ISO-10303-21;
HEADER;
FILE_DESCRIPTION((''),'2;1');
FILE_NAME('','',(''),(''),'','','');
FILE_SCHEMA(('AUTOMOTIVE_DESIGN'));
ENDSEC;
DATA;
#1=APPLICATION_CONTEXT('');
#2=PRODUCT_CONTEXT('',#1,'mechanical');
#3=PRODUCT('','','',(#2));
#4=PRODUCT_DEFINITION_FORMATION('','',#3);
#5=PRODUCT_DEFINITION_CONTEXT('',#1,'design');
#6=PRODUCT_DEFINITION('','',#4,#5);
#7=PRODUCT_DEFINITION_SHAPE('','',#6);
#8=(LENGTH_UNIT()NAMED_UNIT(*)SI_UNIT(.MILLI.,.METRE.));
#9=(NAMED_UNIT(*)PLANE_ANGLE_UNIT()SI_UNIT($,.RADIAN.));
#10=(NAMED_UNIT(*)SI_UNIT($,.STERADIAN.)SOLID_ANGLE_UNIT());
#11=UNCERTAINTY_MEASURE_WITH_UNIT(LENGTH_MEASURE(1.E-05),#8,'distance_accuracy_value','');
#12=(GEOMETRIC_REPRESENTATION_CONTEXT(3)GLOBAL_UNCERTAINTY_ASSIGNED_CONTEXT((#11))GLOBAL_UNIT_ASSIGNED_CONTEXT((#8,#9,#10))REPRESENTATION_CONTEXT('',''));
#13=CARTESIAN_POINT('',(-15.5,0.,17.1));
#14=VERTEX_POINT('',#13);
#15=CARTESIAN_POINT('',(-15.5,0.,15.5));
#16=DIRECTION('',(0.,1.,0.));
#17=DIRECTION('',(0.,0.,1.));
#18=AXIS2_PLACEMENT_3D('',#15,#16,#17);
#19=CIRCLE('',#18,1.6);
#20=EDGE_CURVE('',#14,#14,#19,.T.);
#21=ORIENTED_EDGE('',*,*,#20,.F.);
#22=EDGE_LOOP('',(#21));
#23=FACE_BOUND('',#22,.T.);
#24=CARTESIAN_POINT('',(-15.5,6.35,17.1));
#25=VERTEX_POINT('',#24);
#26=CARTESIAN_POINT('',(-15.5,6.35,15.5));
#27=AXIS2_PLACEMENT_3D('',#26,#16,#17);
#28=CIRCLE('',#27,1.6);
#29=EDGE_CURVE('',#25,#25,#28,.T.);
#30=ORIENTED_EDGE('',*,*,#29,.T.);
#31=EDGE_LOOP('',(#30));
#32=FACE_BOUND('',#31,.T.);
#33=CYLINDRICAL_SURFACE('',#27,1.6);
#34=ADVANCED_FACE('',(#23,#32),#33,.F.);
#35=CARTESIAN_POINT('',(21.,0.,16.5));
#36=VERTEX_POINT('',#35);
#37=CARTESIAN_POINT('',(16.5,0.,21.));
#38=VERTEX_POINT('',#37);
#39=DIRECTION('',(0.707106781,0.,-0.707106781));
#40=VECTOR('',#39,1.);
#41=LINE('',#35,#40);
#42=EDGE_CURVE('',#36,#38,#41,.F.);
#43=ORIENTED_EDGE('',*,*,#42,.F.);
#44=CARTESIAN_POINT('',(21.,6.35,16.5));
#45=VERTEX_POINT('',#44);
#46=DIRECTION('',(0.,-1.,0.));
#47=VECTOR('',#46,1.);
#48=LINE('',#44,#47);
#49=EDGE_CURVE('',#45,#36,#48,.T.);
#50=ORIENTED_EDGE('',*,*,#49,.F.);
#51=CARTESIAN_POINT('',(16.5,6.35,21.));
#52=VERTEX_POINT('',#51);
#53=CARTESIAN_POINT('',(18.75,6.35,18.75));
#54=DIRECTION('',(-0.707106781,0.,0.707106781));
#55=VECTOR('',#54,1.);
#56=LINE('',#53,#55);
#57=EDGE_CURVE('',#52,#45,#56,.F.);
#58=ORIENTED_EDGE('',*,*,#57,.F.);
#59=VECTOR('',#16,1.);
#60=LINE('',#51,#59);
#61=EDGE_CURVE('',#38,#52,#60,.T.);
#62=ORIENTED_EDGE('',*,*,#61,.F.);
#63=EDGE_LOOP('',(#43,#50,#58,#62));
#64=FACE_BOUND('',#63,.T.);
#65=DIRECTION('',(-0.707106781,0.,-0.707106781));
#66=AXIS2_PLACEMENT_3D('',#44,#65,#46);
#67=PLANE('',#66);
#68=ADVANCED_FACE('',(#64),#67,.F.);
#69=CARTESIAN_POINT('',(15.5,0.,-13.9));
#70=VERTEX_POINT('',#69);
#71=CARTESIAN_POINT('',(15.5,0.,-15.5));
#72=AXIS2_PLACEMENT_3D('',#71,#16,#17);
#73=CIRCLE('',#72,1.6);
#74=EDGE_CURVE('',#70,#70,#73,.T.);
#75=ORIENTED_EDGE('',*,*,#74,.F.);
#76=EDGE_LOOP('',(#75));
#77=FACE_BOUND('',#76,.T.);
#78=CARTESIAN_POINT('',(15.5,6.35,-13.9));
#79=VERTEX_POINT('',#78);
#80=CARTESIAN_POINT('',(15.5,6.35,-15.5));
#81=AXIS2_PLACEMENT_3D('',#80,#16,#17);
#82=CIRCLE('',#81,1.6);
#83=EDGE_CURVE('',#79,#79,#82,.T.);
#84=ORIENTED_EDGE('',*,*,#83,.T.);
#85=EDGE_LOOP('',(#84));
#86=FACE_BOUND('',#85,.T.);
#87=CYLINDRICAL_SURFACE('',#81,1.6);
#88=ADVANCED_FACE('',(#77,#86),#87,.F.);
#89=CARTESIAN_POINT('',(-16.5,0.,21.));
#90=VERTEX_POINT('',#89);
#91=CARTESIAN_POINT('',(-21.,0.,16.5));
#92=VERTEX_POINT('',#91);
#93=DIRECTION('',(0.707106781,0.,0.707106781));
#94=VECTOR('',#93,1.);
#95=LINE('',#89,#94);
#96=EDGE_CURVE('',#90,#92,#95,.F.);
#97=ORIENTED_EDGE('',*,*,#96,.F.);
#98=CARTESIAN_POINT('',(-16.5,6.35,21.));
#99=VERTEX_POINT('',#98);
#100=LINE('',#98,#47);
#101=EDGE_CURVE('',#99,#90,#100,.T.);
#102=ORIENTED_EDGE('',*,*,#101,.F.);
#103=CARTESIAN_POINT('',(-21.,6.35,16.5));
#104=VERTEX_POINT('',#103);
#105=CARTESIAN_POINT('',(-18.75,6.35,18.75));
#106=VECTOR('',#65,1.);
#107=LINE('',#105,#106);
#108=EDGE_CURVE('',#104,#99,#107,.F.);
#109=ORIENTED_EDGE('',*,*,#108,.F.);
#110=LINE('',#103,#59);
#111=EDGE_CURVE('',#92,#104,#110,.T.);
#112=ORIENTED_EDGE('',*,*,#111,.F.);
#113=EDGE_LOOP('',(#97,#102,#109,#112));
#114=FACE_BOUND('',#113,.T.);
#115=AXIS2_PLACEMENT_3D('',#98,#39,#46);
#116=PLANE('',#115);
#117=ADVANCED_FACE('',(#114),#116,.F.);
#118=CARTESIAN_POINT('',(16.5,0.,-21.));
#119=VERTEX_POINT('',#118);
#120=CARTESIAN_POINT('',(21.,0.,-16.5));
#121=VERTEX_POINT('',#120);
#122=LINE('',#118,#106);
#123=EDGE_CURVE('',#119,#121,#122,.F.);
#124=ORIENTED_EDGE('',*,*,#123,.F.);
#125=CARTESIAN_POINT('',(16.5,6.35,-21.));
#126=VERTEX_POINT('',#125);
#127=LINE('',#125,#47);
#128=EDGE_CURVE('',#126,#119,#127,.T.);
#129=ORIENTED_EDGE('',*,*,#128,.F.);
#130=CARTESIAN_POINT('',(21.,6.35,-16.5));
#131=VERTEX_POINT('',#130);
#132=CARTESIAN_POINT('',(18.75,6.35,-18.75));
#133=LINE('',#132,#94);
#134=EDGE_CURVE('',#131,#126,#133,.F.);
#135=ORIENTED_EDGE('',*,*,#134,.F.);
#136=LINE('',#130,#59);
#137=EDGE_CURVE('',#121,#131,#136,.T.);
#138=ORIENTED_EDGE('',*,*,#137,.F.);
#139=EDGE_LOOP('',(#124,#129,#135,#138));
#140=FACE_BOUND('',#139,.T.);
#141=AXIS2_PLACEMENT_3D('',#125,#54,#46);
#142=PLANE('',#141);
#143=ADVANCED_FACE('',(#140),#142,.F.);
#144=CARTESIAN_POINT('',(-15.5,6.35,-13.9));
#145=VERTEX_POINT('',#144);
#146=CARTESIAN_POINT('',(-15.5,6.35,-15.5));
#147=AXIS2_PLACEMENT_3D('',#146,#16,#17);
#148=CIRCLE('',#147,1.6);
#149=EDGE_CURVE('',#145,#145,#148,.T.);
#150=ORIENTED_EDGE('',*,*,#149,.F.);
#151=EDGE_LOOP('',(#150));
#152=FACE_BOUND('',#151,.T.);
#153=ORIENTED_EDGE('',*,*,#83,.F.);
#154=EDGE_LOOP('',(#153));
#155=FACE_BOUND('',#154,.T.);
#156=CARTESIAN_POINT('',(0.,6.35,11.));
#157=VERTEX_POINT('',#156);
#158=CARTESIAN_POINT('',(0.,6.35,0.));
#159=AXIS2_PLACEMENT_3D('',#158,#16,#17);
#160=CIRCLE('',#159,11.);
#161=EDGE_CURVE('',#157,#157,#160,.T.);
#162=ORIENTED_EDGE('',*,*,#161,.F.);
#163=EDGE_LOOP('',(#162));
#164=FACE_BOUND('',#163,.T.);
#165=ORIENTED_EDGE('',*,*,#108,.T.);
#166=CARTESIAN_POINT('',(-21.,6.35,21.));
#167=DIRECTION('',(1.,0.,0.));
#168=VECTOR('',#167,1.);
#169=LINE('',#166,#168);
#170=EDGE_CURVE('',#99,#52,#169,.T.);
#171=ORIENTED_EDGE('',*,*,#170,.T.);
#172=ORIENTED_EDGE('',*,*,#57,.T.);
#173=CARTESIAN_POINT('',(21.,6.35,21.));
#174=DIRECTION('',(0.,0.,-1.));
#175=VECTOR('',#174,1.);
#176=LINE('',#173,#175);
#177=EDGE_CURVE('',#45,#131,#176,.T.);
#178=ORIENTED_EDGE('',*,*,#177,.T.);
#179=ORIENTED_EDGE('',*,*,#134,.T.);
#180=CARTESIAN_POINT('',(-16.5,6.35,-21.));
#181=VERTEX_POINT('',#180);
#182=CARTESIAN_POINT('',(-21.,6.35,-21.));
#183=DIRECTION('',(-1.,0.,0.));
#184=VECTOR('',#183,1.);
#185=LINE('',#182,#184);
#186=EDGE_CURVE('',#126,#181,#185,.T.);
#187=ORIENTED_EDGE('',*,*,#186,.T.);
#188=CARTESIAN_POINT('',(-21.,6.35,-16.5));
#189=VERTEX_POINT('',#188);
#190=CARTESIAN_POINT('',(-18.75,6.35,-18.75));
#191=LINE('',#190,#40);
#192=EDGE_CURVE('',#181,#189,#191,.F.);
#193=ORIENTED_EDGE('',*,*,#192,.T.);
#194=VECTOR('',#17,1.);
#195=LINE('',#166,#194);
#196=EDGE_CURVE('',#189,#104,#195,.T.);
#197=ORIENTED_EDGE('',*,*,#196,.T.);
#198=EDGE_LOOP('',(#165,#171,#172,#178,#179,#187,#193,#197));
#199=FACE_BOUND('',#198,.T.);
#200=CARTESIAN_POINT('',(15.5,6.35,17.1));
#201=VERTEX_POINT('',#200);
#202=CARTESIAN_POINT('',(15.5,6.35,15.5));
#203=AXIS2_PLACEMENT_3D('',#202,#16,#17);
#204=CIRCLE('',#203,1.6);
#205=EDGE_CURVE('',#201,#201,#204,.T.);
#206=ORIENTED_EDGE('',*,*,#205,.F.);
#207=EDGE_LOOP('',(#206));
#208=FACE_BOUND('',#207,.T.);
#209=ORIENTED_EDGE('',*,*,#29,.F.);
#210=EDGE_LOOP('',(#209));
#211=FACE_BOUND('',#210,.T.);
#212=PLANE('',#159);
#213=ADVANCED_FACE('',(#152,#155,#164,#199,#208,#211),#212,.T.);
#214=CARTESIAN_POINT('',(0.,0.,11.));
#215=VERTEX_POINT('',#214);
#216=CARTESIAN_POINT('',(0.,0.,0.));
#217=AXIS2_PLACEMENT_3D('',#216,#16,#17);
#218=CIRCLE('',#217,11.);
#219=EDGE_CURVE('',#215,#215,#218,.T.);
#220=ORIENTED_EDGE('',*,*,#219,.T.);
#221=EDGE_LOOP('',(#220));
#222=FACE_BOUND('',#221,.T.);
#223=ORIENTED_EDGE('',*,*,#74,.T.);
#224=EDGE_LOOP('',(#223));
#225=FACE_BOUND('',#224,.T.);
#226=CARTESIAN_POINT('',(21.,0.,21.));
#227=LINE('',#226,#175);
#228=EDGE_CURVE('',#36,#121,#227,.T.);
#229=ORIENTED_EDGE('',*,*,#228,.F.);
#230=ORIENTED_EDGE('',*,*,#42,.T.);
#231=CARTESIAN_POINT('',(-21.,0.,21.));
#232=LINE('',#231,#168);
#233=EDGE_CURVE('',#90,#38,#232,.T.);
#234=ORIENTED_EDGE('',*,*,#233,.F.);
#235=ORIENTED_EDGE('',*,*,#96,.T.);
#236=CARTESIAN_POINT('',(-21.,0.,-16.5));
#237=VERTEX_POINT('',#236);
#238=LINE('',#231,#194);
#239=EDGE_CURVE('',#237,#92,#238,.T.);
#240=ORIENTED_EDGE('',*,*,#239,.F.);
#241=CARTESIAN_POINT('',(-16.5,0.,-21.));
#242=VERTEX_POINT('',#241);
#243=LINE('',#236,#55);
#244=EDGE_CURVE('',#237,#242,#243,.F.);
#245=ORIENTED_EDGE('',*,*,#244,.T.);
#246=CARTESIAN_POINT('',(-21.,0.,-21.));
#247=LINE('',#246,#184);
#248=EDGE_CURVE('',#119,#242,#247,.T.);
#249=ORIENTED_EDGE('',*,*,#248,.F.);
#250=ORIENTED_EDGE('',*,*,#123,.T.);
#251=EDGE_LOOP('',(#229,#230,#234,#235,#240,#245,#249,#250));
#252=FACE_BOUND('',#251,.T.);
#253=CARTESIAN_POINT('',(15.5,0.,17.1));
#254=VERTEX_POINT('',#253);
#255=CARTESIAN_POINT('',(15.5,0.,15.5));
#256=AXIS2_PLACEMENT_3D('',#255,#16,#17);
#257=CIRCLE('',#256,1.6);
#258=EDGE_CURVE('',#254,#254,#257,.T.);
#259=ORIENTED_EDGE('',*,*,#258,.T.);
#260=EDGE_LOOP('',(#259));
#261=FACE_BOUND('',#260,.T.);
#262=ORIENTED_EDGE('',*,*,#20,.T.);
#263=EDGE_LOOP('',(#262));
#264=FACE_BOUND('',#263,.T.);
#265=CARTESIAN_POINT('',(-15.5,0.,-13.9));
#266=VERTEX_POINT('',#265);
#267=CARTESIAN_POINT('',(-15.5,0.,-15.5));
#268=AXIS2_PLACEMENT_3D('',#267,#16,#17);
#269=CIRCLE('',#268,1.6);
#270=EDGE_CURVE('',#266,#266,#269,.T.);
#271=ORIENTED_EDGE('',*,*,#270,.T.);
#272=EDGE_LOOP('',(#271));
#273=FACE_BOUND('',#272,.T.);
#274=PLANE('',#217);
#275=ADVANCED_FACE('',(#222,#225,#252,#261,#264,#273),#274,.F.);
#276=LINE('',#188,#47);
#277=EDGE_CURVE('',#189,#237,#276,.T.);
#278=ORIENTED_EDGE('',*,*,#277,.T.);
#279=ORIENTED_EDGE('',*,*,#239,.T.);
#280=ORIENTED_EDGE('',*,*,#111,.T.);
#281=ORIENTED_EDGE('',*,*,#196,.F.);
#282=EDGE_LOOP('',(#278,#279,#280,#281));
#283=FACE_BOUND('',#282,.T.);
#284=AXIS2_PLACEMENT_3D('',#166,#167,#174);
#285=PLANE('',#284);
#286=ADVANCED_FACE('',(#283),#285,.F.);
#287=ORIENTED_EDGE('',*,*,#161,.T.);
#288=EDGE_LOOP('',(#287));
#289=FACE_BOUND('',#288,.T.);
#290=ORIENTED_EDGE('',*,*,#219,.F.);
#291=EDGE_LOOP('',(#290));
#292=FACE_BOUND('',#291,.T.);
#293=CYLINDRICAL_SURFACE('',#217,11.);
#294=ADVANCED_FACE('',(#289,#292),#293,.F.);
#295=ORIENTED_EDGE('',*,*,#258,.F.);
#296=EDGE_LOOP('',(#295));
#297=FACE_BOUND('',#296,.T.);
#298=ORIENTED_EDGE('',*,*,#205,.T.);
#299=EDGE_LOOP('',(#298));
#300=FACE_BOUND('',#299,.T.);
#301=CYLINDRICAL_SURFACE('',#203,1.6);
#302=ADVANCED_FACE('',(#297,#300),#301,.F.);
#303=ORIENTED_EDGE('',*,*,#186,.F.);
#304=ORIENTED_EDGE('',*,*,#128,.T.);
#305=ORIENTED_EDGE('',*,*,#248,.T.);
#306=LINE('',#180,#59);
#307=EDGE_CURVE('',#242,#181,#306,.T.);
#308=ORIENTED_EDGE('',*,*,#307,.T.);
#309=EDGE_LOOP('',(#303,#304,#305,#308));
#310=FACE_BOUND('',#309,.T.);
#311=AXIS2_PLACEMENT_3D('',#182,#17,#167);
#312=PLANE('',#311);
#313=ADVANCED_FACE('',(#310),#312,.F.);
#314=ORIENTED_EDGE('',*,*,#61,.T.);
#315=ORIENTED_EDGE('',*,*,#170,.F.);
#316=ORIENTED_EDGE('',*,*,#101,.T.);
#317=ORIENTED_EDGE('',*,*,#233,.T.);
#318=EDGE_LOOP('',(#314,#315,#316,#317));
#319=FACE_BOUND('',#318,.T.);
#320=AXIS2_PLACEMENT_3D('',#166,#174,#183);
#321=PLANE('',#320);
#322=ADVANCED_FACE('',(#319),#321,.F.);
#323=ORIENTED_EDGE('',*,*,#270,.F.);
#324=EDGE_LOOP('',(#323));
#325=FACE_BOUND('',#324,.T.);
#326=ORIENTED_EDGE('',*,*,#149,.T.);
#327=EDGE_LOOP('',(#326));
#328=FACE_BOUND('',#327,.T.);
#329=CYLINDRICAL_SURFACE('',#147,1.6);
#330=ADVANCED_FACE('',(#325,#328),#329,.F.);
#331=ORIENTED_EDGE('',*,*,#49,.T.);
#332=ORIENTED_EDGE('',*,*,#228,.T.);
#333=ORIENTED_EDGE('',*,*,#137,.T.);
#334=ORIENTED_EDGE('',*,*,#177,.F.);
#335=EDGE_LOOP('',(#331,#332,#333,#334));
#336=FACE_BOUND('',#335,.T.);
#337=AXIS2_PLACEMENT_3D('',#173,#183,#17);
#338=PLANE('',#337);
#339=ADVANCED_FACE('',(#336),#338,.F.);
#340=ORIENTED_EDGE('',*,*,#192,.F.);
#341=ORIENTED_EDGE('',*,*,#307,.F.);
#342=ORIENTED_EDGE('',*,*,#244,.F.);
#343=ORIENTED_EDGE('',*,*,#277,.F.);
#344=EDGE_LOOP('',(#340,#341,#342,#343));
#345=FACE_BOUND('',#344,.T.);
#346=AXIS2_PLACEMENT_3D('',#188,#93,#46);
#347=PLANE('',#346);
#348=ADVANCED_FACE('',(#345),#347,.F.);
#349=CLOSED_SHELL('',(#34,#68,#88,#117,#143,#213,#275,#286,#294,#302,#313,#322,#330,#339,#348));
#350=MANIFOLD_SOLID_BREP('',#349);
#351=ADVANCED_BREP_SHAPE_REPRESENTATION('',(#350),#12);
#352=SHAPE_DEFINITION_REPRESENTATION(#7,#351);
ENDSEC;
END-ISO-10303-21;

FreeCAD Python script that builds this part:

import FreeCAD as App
import Part
import Sketcher

V = App.Vector
Q = App.Units.Quantity


def edges_at(feature, points):
    """Names of the edges that pass closest to the given points."""
    edges = feature.Shape.Edges
    near = lambda p: min(range(len(edges)), key=lambda i: edges[i].distToShape(Part.Vertex(*p))[0])
    return sorted({f"Edge{near(p) + 1}" for p in points})


def add_polygon(sketch, points):
    """Adds a closed chain of lines whose ends are joined by coincident constraints."""
    first, n = sketch.GeometryCount, len(points)
    for a, b in zip(points, points[1:] + points[:1]):
        sketch.addGeometry(Part.LineSegment(App.Vector(*a, 0), App.Vector(*b, 0)), False)
    for i in range(n):
        sketch.addConstraint(Sketcher.Constraint("Coincident", first + i, 2, first + (i + 1) % n, 1))

doc = App.newDocument("Part")
body = doc.addObject("PartDesign::Body", "Body")

# Sketch on XZ plane
sketch1 = doc.addObject("Sketcher::SketchObject", "Sketch")
body.addObject(sketch1)
sketch1.AttachmentSupport = (doc.XZ_Plane, [""])
sketch1.MapMode = "FlatFace"
add_polygon(sketch1, [(-21, -21), (-21, 21), (21, 21), (21, -21)])  # lines 0-3
sketch1.addConstraint([
    Sketcher.Constraint("Vertical", 0),
    Sketcher.Constraint("Horizontal", 1),
    Sketcher.Constraint("Vertical", 2),
    Sketcher.Constraint("Horizontal", 3),
    Sketcher.Constraint("Symmetric", 0, 2, 2, 2, -1, 1),
    Sketcher.Constraint("Equal", 3, 0),
    Sketcher.Constraint("DistanceX", 1, 1, 1, 2, Q("42 mm")),
])
pad1 = doc.addObject("PartDesign::Pad", "Pad")
body.addObject(pad1)
pad1.Profile = sketch1
pad1.Length = 6.35
pad1.Reversed = True
doc.recompute()

chamfer = doc.addObject("PartDesign::Chamfer", "Chamfer")
body.addObject(chamfer)
chamfer.Base = (pad1, edges_at(pad1, [
    (-21, 3.175, 21),
    (-21, 3.175, -21),
    (21, 3.175, -21),
    (21, 3.175, 21),
]))
chamfer.Size = 4.5

# Sketch on XZ plane
sketch2 = doc.addObject("Sketcher::SketchObject", "Sketch001")
body.addObject(sketch2)
sketch2.AttachmentSupport = (doc.XZ_Plane, [""])
sketch2.MapMode = "FlatFace"
sketch2.AttachmentOffset = App.Placement(V(0, 0, -6.35), App.Rotation())
sketch2.addGeometry([
    Part.Circle(V(-15.5, -15.5, 0), V(0, 0, 1), 1.6),
    Part.Circle(V(-15.5, 15.5, 0), V(0, 0, 1), 1.6),
    Part.Circle(V(15.5, 15.5, 0), V(0, 0, 1), 1.6),
    Part.Circle(V(15.5, -15.5, 0), V(0, 0, 1), 1.6),
], False)
sketch2.addConstraint([
    Sketcher.Constraint("Equal", 0, 1),
    Sketcher.Constraint("Equal", 1, 2),
    Sketcher.Constraint("Equal", 2, 3),
    Sketcher.Constraint("Symmetric", 0, 3, 2, 3, -1, 1),
    Sketcher.Constraint("Symmetric", 1, 3, 3, 3, -1, 1),
    Sketcher.Constraint("Symmetric", 1, 3, 2, 3, -2),
    Sketcher.Constraint("Diameter", 0, Q("3.2 mm")),
    Sketcher.Constraint("DistanceY", 0, 3, 1, 3, Q("31 mm")),
    Sketcher.Constraint("DistanceX", 1, 3, 2, 3, Q("31 mm")),
])
doc.recompute()
hole = doc.addObject("PartDesign::Hole", "Hole")
body.addObject(hole)
hole.Profile = sketch2
hole.ThreadType = "None"
hole.Diameter = 3.2
hole.DepthType = "ThroughAll"
hole.Reversed = True

# Sketch on XZ plane
sketch3 = doc.addObject("Sketcher::SketchObject", "Sketch002")
body.addObject(sketch3)
sketch3.AttachmentSupport = (doc.XZ_Plane, [""])
sketch3.MapMode = "FlatFace"
sketch3.AttachmentOffset = App.Placement(V(0, 0, -6.35), App.Rotation())
sketch3.addGeometry(Part.Circle(V(0, 0, 0), V(0, 0, 1), 11), False)
sketch3.addConstraint([
    Sketcher.Constraint("Coincident", 0, 3, -1, 1),
    Sketcher.Constraint("Diameter", 0, Q("22 mm")),
])
pocket1 = doc.addObject("PartDesign::Pocket", "Pocket")
body.addObject(pocket1)
pocket1.Profile = sketch3
pocket1.Type = "ThroughAll"
pocket1.Reversed = True

doc.recompute()
